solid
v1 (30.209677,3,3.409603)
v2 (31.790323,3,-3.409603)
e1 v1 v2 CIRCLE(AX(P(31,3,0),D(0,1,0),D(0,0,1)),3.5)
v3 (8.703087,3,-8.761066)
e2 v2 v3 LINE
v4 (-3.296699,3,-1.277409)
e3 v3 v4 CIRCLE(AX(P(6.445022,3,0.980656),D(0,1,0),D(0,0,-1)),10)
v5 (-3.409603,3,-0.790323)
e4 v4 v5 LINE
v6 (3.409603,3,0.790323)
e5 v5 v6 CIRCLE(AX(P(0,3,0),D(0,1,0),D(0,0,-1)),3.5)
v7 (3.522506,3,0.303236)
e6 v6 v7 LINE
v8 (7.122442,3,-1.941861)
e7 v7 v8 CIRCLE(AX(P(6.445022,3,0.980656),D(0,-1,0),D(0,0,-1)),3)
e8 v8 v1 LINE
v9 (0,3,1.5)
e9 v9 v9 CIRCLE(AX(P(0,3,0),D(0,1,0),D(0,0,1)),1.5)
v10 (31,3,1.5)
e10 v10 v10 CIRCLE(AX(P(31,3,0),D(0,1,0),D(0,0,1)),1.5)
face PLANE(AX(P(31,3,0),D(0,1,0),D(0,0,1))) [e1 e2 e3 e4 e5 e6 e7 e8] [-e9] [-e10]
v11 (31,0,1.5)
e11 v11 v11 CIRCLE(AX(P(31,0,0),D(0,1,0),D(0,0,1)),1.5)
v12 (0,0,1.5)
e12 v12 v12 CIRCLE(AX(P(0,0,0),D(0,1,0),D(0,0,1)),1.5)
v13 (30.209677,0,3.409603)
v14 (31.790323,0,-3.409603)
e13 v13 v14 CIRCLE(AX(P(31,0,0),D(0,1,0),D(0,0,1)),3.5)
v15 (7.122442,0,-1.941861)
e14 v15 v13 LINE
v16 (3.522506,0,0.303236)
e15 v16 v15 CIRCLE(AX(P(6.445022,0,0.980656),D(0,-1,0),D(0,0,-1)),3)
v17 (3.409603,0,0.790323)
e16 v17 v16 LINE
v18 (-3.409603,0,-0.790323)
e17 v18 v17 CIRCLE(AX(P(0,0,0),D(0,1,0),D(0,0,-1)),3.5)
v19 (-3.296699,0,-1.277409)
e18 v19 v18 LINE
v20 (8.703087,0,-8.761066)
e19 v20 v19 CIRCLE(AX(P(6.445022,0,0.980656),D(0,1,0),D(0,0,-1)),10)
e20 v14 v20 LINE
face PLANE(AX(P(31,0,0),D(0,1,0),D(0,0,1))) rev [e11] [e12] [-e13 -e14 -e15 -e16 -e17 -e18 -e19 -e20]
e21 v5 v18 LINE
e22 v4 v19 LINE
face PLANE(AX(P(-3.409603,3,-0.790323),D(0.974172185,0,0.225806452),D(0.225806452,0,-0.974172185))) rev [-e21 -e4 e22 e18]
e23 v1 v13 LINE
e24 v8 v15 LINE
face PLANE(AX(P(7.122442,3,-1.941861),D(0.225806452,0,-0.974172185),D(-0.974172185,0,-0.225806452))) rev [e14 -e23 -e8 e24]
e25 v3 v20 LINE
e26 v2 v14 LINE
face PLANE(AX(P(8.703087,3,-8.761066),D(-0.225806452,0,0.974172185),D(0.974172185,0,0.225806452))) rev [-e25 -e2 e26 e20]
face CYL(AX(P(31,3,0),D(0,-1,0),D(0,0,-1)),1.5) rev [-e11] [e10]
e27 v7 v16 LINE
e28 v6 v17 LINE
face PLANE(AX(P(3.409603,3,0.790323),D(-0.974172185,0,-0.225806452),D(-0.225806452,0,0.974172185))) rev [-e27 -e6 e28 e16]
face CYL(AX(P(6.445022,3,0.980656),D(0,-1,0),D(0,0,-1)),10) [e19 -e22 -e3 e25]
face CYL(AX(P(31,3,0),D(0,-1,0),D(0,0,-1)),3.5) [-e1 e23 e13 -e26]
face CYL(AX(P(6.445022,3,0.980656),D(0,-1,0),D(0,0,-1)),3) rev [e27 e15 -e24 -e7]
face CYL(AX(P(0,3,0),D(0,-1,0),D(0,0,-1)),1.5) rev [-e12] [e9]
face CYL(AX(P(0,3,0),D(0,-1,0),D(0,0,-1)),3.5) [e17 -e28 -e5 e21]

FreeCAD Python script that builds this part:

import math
import FreeCAD as App
import Part
import Sketcher

V = App.Vector
Q = App.Units.Quantity

doc = App.newDocument("Part")
body = doc.addObject("PartDesign::Body", "Body")

# Sketch on XZ plane
sketch1 = body.newObject("Sketcher::SketchObject", "Sketch")
sketch1.AttachmentSupport = (doc.getObject("XZ_Plane"), [""])
sketch1.MapMode = "FlatFace"
sketch1.addGeometry([
    Part.LineSegment(V(3.409603, 0.790323, 0), V(3.522506, 0.303236, 0)),  # 0
    Part.ArcOfCircle(Part.Circle(V(6.445022, 0.980656, 0), V(0, 0, 1), 3), math.radians(-166.949695), math.radians(-76.949695)),  # 1
    Part.LineSegment(V(7.122442, -1.941861, 0), V(30.209677, 3.409603, 0)),  # 2
    Part.ArcOfCircle(Part.Circle(V(31, 0, 0), V(0, 0, 1), 3.5), math.radians(-76.949695), math.radians(103.050305)),  # 3
    Part.LineSegment(V(31.790323, -3.409603, 0), V(8.703087, -8.761066, 0)),  # 4
    Part.ArcOfCircle(Part.Circle(V(6.445022, 0.980656, 0), V(0, 0, 1), 10), math.radians(-166.949695), math.radians(-76.949695)),  # 5
    Part.LineSegment(V(-3.296699, -1.277409, 0), V(-3.409603, -0.790323, 0)),  # 6
    Part.ArcOfCircle(Part.Circle(V(0, 0, 0), V(0, 0, 1), 3.5), math.radians(13.050305), math.radians(193.050305)),  # 7
    Part.Circle(V(0, 0, 0), V(0, 0, 1), 1.5),  # 8
    Part.Circle(V(31, 0, 0), V(0, 0, 1), 1.5),  # 9
], False)
sketch1.addConstraint([
    Sketcher.Constraint("Tangent", 0, 2, 1, 1),
    Sketcher.Constraint("Tangent", 1, 2, 2, 1),
    Sketcher.Constraint("Tangent", 2, 2, 3, 2),
    Sketcher.Constraint("Tangent", 3, 1, 4, 1),
    Sketcher.Constraint("Tangent", 4, 2, 5, 2),
    Sketcher.Constraint("Tangent", 5, 1, 6, 1),
    Sketcher.Constraint("Tangent", 6, 2, 7, 2),
    Sketcher.Constraint("Tangent", 7, 1, 0, 1),
    Sketcher.Constraint("Coincident", 7, 3, -1, 1),
    Sketcher.Constraint("Coincident", 8, 3, -1, 1),
    Sketcher.Constraint("Coincident", 5, 3, 1, 3),
    Sketcher.Constraint("Coincident", 9, 3, 3, 3),
    Sketcher.Constraint("Equal", 3, 7),
    Sketcher.Constraint("Equal", 8, 9),
    Sketcher.Constraint("PointOnObject", 3, 3, -1),
    Sketcher.Constraint("Perpendicular", 0, 2),
    Sketcher.Constraint("Parallel", 2, 4),
    Sketcher.Constraint("Diameter", 8, Q("3 mm")),
    Sketcher.Constraint("Radius", 1, Q("3 mm")),
    Sketcher.Constraint("Radius", 5, Q("10 mm")),
    Sketcher.Constraint("DistanceX", -1, 1, 3, 3, Q("31 mm")),
    Sketcher.Constraint("Distance", 0, Q("0.5 mm")),
])
pad1 = body.newObject("PartDesign::Pad", "Pad")
pad1.Profile = sketch1
pad1.Length = 3
pad1.Reversed = True

doc.recompute()
